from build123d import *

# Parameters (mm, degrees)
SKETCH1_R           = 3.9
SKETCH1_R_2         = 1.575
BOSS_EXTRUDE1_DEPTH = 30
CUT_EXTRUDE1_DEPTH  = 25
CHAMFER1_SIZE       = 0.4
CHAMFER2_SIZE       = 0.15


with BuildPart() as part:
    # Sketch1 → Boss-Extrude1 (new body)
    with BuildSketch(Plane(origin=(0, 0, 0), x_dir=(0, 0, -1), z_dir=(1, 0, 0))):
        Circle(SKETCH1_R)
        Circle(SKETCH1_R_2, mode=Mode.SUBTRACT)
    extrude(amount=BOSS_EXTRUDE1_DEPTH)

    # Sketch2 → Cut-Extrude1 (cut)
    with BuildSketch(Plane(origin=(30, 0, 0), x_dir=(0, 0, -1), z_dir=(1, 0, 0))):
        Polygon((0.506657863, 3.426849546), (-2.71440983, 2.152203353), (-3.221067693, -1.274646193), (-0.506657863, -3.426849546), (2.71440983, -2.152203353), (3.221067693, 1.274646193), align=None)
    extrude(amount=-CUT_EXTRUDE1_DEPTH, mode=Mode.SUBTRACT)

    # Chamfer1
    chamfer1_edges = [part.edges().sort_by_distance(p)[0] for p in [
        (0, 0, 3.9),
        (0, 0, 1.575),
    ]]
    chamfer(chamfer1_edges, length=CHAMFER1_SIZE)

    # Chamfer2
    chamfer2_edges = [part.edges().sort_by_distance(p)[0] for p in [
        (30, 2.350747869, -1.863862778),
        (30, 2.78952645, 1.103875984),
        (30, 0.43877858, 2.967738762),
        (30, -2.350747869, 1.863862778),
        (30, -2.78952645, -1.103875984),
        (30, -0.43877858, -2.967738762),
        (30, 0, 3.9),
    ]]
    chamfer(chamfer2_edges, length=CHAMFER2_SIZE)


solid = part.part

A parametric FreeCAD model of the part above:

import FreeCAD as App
import Part
import Sketcher
from FreeCAD import Vector
Q = App.Units.Quantity


def edges_at(feature, points):
    """Names of the edges that pass closest to the given points."""
    edges = feature.Shape.Edges
    near = lambda p: min(range(len(edges)), key=lambda i: edges[i].distToShape(Part.Vertex(*p))[0])
    return sorted({f"Edge{near(p) + 1}" for p in points})


def add_polygon(sketch, points):
    """Adds a closed chain of lines whose ends are joined by coincident constraints."""
    first, n = sketch.GeometryCount, len(points)
    for a, b in zip(points, points[1:] + points[:1]):
        sketch.addGeometry(Part.LineSegment(App.Vector(*a, 0), App.Vector(*b, 0)), False)
    for i in range(n):
        sketch.addConstraint(Sketcher.Constraint("Coincident", first + i, 2, first + (i + 1) % n, 1))

doc = App.newDocument("Part")
body = doc.addObject("PartDesign::Body", "Body")

sketch1 = body.newObject("Sketcher::SketchObject", "Sketch")
sketch1.AttachmentSupport = (doc.getObject("YZ_Plane"), [""])
sketch1.MapMode = "FlatFace"
sketch1.addGeometry([
    Part.Circle(Vector(0, 0, 0), Vector(0, 0, 1), 3.9),
    Part.Circle(Vector(0, 0, 0), Vector(0, 0, 1), 1.6),
], False)
sketch1.addConstraint([
    Sketcher.Constraint("Coincident", 0, 3, -1, 1),
    Sketcher.Constraint("Coincident", 1, 3, -1, 1),
    Sketcher.Constraint("Diameter", 0, Q("7.8 mm")),
    Sketcher.Constraint("Diameter", 1, Q("3.15 mm")),
])
pad1 = body.newObject("PartDesign::Pad", "Pad")
pad1.Profile = sketch1
pad1.Length = 30

sketch2 = body.newObject("Sketcher::SketchObject", "Sketch001")
sketch2.AttachmentSupport = (doc.getObject("YZ_Plane"), [""])
sketch2.MapMode = "FlatFace"
sketch2.AttachmentOffset = App.Placement(Vector(0, 0, 30), App.Rotation())
add_polygon(sketch2, [(3.4, -0.5), (2.2, 2.7), (-1.3, 3.2), (-3.4, 0.5), (-2.2, -2.7), (1.3, -3.2)])
sketch2.addConstraint([
    Sketcher.Constraint("Symmetric", 0, 2, 3, 2, -1, 1),
    Sketcher.Constraint("Symmetric", 1, 2, 4, 2, -1, 1),
    Sketcher.Constraint("Symmetric", 2, 2, 5, 2, -1, 1),
    Sketcher.Constraint("Equal", 0, 1),
    Sketcher.Constraint("Equal", 1, 2),
    Sketcher.Constraint("Distance", 0, Q("3.464102 mm")),
    Sketcher.Constraint("DistanceX", 2, 2, 5, 2, Q("6.853699 mm")),
    Sketcher.Constraint("DistanceY", -1, 1, 0, 2, Q("2.71441 mm")),
    Sketcher.Constraint("DistanceX", 1, 2, 0, 2, Q("3.42685 mm")),
])
pocket1 = body.newObject("PartDesign::Pocket", "Pocket")
pocket1.Profile = sketch2
pocket1.Length = 25
doc.recompute()

chamfer = body.newObject("PartDesign::Chamfer", "Chamfer")
chamfer.Base = (pocket1, edges_at(pocket1, [(0, 0, 3.9), (0, 0, 1.575)]))
chamfer.Size = 0.4
doc.recompute()

chamfer2 = body.newObject("PartDesign::Chamfer", "Chamfer001")
chamfer2.Base = (chamfer, edges_at(chamfer, [
    (30, 2.351, -1.864),
    (30, 2.79, 1.104),
    (30, 0.439, 2.968),
    (30, -2.351, 1.864),
    (30, -2.79, -1.104),
    (30, -0.439, -2.968),
    (30, 0, 3.9),
]))
chamfer2.Size = 0.15

doc.recompute()
